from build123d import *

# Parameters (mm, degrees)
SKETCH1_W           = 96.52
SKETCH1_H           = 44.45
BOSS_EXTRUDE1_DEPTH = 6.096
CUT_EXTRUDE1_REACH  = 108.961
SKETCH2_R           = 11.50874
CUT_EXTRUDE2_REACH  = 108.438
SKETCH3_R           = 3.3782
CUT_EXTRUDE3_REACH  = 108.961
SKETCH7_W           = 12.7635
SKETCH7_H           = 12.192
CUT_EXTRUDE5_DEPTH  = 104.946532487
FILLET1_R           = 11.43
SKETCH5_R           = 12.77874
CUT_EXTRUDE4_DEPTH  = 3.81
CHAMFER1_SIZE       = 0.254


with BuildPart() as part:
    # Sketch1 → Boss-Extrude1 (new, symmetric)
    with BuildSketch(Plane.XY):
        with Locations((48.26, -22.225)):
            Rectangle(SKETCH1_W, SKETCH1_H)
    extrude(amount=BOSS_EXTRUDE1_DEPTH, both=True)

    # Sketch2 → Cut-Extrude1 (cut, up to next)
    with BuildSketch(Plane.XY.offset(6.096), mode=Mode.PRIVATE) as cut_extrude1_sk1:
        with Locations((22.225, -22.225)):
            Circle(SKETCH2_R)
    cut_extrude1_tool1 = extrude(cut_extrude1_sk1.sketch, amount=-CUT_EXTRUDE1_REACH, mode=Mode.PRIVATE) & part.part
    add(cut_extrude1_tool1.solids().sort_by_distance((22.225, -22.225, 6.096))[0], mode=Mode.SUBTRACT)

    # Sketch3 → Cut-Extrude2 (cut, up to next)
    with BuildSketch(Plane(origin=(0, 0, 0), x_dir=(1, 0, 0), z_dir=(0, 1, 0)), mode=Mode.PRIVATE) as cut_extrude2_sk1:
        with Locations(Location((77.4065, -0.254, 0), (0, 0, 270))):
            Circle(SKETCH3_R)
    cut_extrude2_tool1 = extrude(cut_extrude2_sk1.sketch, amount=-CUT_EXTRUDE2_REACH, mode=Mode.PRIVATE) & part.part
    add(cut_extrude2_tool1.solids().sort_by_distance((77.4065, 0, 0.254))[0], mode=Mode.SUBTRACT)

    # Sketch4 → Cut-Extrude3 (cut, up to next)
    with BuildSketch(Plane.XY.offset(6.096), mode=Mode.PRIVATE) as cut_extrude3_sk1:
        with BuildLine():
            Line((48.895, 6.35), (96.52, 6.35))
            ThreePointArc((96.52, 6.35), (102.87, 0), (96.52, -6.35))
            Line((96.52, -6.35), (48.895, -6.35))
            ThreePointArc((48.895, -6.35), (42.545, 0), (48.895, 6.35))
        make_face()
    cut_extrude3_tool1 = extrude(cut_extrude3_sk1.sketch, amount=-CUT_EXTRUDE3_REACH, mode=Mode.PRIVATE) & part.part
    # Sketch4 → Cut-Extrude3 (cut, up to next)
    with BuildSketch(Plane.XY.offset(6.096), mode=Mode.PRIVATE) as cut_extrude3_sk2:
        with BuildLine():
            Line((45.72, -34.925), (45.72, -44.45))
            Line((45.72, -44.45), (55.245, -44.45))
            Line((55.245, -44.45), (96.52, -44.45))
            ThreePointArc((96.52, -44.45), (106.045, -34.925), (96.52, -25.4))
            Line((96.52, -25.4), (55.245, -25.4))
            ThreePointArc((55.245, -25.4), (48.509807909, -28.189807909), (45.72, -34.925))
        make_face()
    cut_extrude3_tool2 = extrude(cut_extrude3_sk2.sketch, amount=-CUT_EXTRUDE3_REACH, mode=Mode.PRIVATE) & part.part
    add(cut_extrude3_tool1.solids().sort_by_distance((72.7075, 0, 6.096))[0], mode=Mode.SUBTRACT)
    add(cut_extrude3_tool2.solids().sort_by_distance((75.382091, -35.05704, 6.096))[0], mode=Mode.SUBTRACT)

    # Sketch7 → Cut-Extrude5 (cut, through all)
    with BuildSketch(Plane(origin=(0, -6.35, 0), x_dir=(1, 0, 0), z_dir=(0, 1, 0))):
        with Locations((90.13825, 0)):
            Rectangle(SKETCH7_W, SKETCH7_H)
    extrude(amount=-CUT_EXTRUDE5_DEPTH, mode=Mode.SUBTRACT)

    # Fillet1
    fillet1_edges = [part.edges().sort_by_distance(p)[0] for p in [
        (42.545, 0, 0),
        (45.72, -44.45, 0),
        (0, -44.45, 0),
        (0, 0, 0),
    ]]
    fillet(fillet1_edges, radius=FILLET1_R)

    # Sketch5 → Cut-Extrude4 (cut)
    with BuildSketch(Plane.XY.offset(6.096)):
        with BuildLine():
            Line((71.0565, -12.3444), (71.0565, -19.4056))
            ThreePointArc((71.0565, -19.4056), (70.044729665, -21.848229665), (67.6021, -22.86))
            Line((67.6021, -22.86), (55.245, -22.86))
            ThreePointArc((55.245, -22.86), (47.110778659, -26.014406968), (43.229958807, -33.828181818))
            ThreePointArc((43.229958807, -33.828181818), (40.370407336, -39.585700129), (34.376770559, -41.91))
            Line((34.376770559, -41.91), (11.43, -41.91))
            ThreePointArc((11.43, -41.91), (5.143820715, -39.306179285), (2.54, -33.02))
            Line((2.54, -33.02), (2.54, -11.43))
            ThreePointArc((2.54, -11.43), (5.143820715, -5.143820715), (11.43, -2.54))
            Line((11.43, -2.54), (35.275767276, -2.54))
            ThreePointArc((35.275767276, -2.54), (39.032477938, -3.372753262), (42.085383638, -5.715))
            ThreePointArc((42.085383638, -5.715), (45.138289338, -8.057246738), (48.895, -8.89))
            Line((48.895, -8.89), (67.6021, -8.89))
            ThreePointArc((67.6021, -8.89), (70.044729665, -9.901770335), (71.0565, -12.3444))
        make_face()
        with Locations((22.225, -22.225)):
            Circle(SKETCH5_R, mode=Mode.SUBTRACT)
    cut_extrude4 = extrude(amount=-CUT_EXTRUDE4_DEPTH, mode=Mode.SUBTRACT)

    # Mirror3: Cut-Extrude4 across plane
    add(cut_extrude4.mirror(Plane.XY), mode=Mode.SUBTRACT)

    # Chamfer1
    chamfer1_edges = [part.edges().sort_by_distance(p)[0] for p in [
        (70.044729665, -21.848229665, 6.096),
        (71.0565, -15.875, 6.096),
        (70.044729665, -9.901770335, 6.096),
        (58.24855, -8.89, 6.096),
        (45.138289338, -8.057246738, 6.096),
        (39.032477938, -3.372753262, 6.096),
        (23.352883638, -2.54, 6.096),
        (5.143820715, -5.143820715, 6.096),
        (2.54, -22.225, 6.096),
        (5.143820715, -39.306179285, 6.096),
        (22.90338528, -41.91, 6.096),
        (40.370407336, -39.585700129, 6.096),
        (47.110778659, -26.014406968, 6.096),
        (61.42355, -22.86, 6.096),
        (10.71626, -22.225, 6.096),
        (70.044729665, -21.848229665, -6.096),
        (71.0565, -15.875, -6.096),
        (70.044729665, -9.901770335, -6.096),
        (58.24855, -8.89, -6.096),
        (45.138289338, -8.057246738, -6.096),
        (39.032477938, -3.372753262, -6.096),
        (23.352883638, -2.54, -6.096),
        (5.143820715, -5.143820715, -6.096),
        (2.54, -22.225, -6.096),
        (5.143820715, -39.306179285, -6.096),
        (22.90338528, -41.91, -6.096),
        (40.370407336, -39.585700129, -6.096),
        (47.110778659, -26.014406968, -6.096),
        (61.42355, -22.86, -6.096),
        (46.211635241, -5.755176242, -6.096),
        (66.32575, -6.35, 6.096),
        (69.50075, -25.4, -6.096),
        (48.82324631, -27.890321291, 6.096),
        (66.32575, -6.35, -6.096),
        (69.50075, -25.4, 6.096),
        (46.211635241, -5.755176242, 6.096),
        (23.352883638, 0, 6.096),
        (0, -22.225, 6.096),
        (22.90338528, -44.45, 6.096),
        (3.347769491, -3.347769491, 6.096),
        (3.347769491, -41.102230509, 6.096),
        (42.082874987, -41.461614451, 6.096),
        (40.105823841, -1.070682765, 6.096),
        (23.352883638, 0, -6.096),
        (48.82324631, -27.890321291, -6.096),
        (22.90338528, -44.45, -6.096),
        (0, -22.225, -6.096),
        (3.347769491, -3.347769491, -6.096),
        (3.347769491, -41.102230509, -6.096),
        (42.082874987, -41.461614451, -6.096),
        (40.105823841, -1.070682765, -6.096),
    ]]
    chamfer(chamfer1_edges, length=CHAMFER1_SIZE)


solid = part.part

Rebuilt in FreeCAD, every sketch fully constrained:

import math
import FreeCAD as App
import Part
import Sketcher
Q = App.Units.Quantity


def edges_at(feature, points):
    """Names of the edges that pass closest to the given points."""
    edges = feature.Shape.Edges
    near = lambda p: min(range(len(edges)), key=lambda i: edges[i].distToShape(Part.Vertex(*p))[0])
    return sorted({f"Edge{near(p) + 1}" for p in points})

doc = App.newDocument("Part")
params = doc.addObject("Spreadsheet::Sheet", "Params")
for row, (alias, value) in enumerate([
    ("sketch1_width", "3.8 in"),
    ("sketch1_height", "1.75 in"),
    ("pad1_length", "0.48 in"),
    ("sketch3_diameter", "0.266 in"),
    ("sketch4_radius", "0.25 in"),
    ("sketch4_width", "1.875 in"),
    ("sketch5_width", "2 in"),
    ("sketch5_radius", "0.375 in"),
    ("sketch6_height", "0.48 in"),
    ("fillet_radius", "0.45 in"),
    ("sketch7_radius", "0.35 in"),
    ("sketch7_radius2", "0.136 in"),
    ("sketch7_radius3", "0.475 in"),
    ("sketch7_height", "0.85 in"),
    ("pocket6_length", "0.15 in"),
    ("chamfer_size", "0.01 in"),
], start=1):
    params.set(f"A{row}", alias)
    params.set(f"B{row}", "=" + value)
    params.setAlias(f"B{row}", alias)

body = doc.addObject("PartDesign::Body", "Body")

# Sketch on XY plane
sketch1 = body.newObject("Sketcher::SketchObject", "Sketch")
sketch1.AttachmentSupport = (doc.getObject("XY_Plane"), [""])
sketch1.MapMode = "FlatFace"
sketch1.addGeometry([
    Part.LineSegment(App.Vector(0, 0, 0), App.Vector(0, -44, 0)),
    Part.LineSegment(App.Vector(0, -44, 0), App.Vector(97, -44, 0)),
    Part.LineSegment(App.Vector(97, -44, 0), App.Vector(97, 0, 0)),
    Part.LineSegment(App.Vector(97, 0, 0), App.Vector(0, 0, 0)),
], False)
sketch1.addConstraint([
    Sketcher.Constraint("Coincident", 0, 2, 1, 1),
    Sketcher.Constraint("Coincident", 1, 2, 2, 1),
    Sketcher.Constraint("Coincident", 2, 2, 3, 1),
    Sketcher.Constraint("Coincident", 3, 2, 0, 1),
    Sketcher.Constraint("Vertical", 0),
    Sketcher.Constraint("Horizontal", 1),
    Sketcher.Constraint("Vertical", 2),
    Sketcher.Constraint("Horizontal", 3),
    Sketcher.Constraint("Coincident", 3, 2, -1, 1),
    Sketcher.Constraint("DistanceX", 1, 1, 1, 2, Q("3.8 in")),
    Sketcher.Constraint("DistanceY", 0, 2, 0, 1, Q("1.75 in")),
])
sketch1.setExpression("Constraints[9]", "Params.sketch1_width")
sketch1.setExpression("Constraints[10]", "Params.sketch1_height")
pad1 = body.newObject("PartDesign::Pad", "Pad")
pad1.Profile = sketch1
pad1.setExpression("Length", "Params.pad1_length")
pad1.Midplane = True

# Sketch on XY plane
sketch2 = body.newObject("Sketcher::SketchObject", "Sketch001")
sketch2.AttachmentSupport = (doc.getObject("XY_Plane"), [""])
sketch2.MapMode = "FlatFace"
sketch2.AttachmentOffset = App.Placement(App.Vector(0, 0, 0.24 * 25.4), App.Rotation())
sketch2.addGeometry(Part.Circle(App.Vector(22, -22, 0), App.Vector(0, 0, 1), 12), False)
sketch2.addConstraint([
    Sketcher.Constraint("Diameter", 0, Q("0.9062 in")),
    Sketcher.Constraint("DistanceX", -1, 1, 0, 3, Q("0.875 in")),
    Sketcher.Constraint("DistanceY", 0, 3, -1, 1, Q("0.875 in")),
])
pocket1 = body.newObject("PartDesign::Pocket", "Pocket")
pocket1.Profile = sketch2
pocket1.Type = "UpToFirst"

# Sketch on XZ plane
sketch3 = body.newObject("Sketcher::SketchObject", "Sketch002")
sketch3.AttachmentSupport = (doc.getObject("XZ_Plane"), [""])
sketch3.MapMode = "FlatFace"
sketch3.addGeometry(Part.Circle(App.Vector(77.4, 0.3, 0), App.Vector(0, 0, 1), 3.4), False)
sketch3.addConstraint([
    Sketcher.Constraint("Diameter", 0, Q("0.266 in")),
    Sketcher.Constraint("DistanceY", -1, 1, 0, 3, Q("0.01 in")),
    Sketcher.Constraint("DistanceX", -1, 1, 0, 3, Q("3.0475 in")),
])
sketch3.setExpression("Constraints[0]", "Params.sketch3_diameter")
pocket2 = body.newObject("PartDesign::Pocket", "Pocket001")
pocket2.Profile = sketch3
pocket2.Type = "UpToFirst"
pocket2.Reversed = True

# Sketch on XY plane
sketch4 = body.newObject("Sketcher::SketchObject", "Sketch003")
sketch4.AttachmentSupport = (doc.getObject("XY_Plane"), [""])
sketch4.MapMode = "FlatFace"
sketch4.AttachmentOffset = App.Placement(App.Vector(0, 0, 0.24 * 25.4), App.Rotation())
sketch4.addGeometry([
    Part.LineSegment(App.Vector(97, 6, 0), App.Vector(49, 6, 0)),
    Part.ArcOfCircle(Part.Circle(App.Vector(49, 0, 0), App.Vector(0, 0, 1), 6), math.radians(90), math.radians(270)),
    Part.LineSegment(App.Vector(49, -6, 0), App.Vector(97, -6, 0)),
    Part.ArcOfCircle(Part.Circle(App.Vector(97, 0, 0), App.Vector(0, 0, 1), 6), math.radians(-90), math.radians(90)),
], False)
sketch4.addConstraint([
    Sketcher.Constraint("Tangent", 0, 2, 1, 1),
    Sketcher.Constraint("Tangent", 1, 2, 2, 1),
    Sketcher.Constraint("Tangent", 2, 2, 3, 1),
    Sketcher.Constraint("Tangent", 3, 2, 0, 1),
    Sketcher.Constraint("Horizontal", 0),
    Sketcher.Constraint("Horizontal", 2),
    Sketcher.Constraint("PointOnObject", 1, 3, -1),
    Sketcher.Constraint("Radius", 1, Q("0.25 in")),
    Sketcher.Constraint("DistanceX", -1, 1, 3, 3, Q("3.8 in")),
    Sketcher.Constraint("DistanceX", 0, 2, 0, 1, Q("1.875 in")),
])
sketch4.setExpression("Constraints[7]", "Params.sketch4_radius")
sketch4.setExpression("Constraints[9]", "Params.sketch4_width")
pocket3 = body.newObject("PartDesign::Pocket", "Pocket002")
pocket3.Profile = sketch4
pocket3.Type = "UpToFirst"

# Sketch on XY plane
sketch5 = body.newObject("Sketcher::SketchObject", "Sketch004")
sketch5.AttachmentSupport = (doc.getObject("XY_Plane"), [""])
sketch5.MapMode = "FlatFace"
sketch5.AttachmentOffset = App.Placement(App.Vector(0, 0, 0.24 * 25.4), App.Rotation())
sketch5.addGeometry([
    Part.LineSegment(App.Vector(46, -35, 0), App.Vector(46, -44, 0)),  # 0
    Part.LineSegment(App.Vector(46, -44, 0), App.Vector(97, -44, 0)),  # 1
    Part.ArcOfCircle(Part.Circle(App.Vector(97, -35, 0), App.Vector(0, 0, 1), 10), math.radians(-90), math.radians(90)),  # 2
    Part.LineSegment(App.Vector(97, -25, 0), App.Vector(55, -25, 0)),  # 3
    Part.ArcOfCircle(Part.Circle(App.Vector(55, -35, 0), App.Vector(0, 0, 1), 10), math.radians(90), math.radians(180)),  # 4
], False)
sketch5.addConstraint([
    Sketcher.Constraint("Coincident", 0, 2, 1, 1),
    Sketcher.Constraint("Tangent", 1, 2, 2, 1),
    Sketcher.Constraint("Tangent", 2, 2, 3, 1),
    Sketcher.Constraint("Tangent", 3, 2, 4, 1),
    Sketcher.Constraint("Tangent", 4, 2, 0, 1),
    Sketcher.Constraint("Vertical", 0),
    Sketcher.Constraint("Horizontal", 1),
    Sketcher.Constraint("Horizontal", 3),
    Sketcher.Constraint("Equal", 2, 4),
    Sketcher.Constraint("DistanceX", 1, 1, 1, 2, Q("2 in")),
    Sketcher.Constraint("DistanceY", 2, 2, -1, 1, Q("1 in")),
    Sketcher.Constraint("Radius", 2, Q("0.375 in")),
    Sketcher.Constraint("DistanceX", -1, 1, 2, 3, Q("3.8 in")),
])
sketch5.setExpression("Constraints[9]", "Params.sketch5_width")
sketch5.setExpression("Constraints[11]", "Params.sketch5_radius")
pocket4 = body.newObject("PartDesign::Pocket", "Pocket003")
pocket4.Profile = sketch5
pocket4.Type = "UpToFirst"

# Sketch on XZ plane
sketch6 = body.newObject("Sketcher::SketchObject", "Sketch005")
sketch6.AttachmentSupport = (doc.getObject("XZ_Plane"), [""])
sketch6.MapMode = "FlatFace"
sketch6.AttachmentOffset = App.Placement(App.Vector(0, 0, 0.25 * 25.4), App.Rotation())
sketch6.addGeometry([
    Part.LineSegment(App.Vector(84, -6, 0), App.Vector(84, 6, 0)),
    Part.LineSegment(App.Vector(84, 6, 0), App.Vector(97, 6, 0)),
    Part.LineSegment(App.Vector(97, 6, 0), App.Vector(97, -6, 0)),
    Part.LineSegment(App.Vector(97, -6, 0), App.Vector(84, -6, 0)),
], False)
sketch6.addConstraint([
    Sketcher.Constraint("Coincident", 0, 2, 1, 1),
    Sketcher.Constraint("Coincident", 1, 2, 2, 1),
    Sketcher.Constraint("Coincident", 2, 2, 3, 1),
    Sketcher.Constraint("Coincident", 3, 2, 0, 1),
    Sketcher.Constraint("Vertical", 0),
    Sketcher.Constraint("Horizontal", 1),
    Sketcher.Constraint("Vertical", 2),
    Sketcher.Constraint("Horizontal", 3),
    Sketcher.Constraint("DistanceY", 0, 1, 0, 2, Q("0.48 in")),
    Sketcher.Constraint("DistanceX", -1, 1, 1, 2, Q("3.8 in")),
    Sketcher.Constraint("DistanceY", -1, 1, 0, 2, Q("0.24 in")),
    Sketcher.Constraint("DistanceX", 1, 1, 1, 2, Q("0.5025 in")),
])
sketch6.setExpression("Constraints[8]", "Params.sketch6_height")
pocket5 = body.newObject("PartDesign::Pocket", "Pocket004")
pocket5.Profile = sketch6
pocket5.Type = "ThroughAll"
pocket5.Reversed = True
doc.recompute()

fillet = body.newObject("PartDesign::Fillet", "Fillet")
fillet.Base = (pocket5, edges_at(pocket5, [
    (42.545, 0, 0),
    (45.72, -44.45, 0),
    (0, -44.45, 0),
    (0, 0, 0),
]))
fillet.setExpression("Radius", "Params.fillet_radius")

# Sketch on XY plane
sketch7 = body.newObject("Sketcher::SketchObject", "Sketch006")
sketch7.AttachmentSupport = (doc.getObject("XY_Plane"), [""])
sketch7.MapMode = "FlatFace"
sketch7.AttachmentOffset = App.Placement(App.Vector(0, 0, 0.24 * 25.4), App.Rotation())
sketch7.addGeometry([
    Part.LineSegment(App.Vector(71.1, -19.4, 0), App.Vector(71.1, -12.3, 0)),  # 0
    Part.ArcOfCircle(Part.Circle(App.Vector(67.6, -12.3, 0), App.Vector(0, 0, 1), 3.5), math.radians(0), math.radians(90)),  # 1
    Part.LineSegment(App.Vector(67.6, -8.9, 0), App.Vector(48.9, -8.9, 0)),  # 2
    Part.ArcOfCircle(Part.Circle(App.Vector(48.9, 0, 0), App.Vector(0, 0, 1), 8.9), math.radians(-140), math.radians(-90)),  # 3
    Part.ArcOfCircle(Part.Circle(App.Vector(35.3, -11.4, 0), App.Vector(0, 0, 1), 8.9), math.radians(40), math.radians(90)),  # 4
    Part.LineSegment(App.Vector(35.3, -2.5, 0), App.Vector(11.4, -2.5, 0)),  # 5
    Part.ArcOfCircle(Part.Circle(App.Vector(11.4, -11.4, 0), App.Vector(0, 0, 1), 8.9), math.radians(90), math.radians(180)),  # 6
    Part.LineSegment(App.Vector(2.5, -11.4, 0), App.Vector(2.5, -33, 0)),  # 7
    Part.ArcOfCircle(Part.Circle(App.Vector(11.4, -33, 0), App.Vector(0, 0, 1), 8.9), math.radians(180), math.radians(270)),  # 8
    Part.LineSegment(App.Vector(11.4, -41.9, 0), App.Vector(34.4, -41.9, 0)),  # 9
    Part.ArcOfCircle(Part.Circle(App.Vector(34.4, -33, 0), App.Vector(0, 0, 1), 8.9), math.radians(-90), math.radians(-5)),  # 10
    Part.ArcOfCircle(Part.Circle(App.Vector(55.2, -34.9, 0), App.Vector(0, 0, 1), 12.1), math.radians(90), math.radians(175)),  # 11
    Part.LineSegment(App.Vector(55.2, -22.9, 0), App.Vector(67.6, -22.9, 0)),  # 12
    Part.ArcOfCircle(Part.Circle(App.Vector(67.6, -19.4, 0), App.Vector(0, 0, 1), 3.5), math.radians(-90), math.radians(0)),  # 13
    Part.Circle(App.Vector(22.2, -22.2, 0), App.Vector(0, 0, 1), 12.8),  # 14
], False)
sketch7.addConstraint([
    Sketcher.Constraint("Tangent", 0, 2, 1, 1),
    Sketcher.Constraint("Tangent", 1, 2, 2, 1),
    Sketcher.Constraint("Tangent", 2, 2, 3, 2),
    Sketcher.Constraint("Tangent", 3, 1, 4, 1),
    Sketcher.Constraint("Tangent", 4, 2, 5, 1),
    Sketcher.Constraint("Tangent", 5, 2, 6, 1),
    Sketcher.Constraint("Tangent", 6, 2, 7, 1),
    Sketcher.Constraint("Tangent", 7, 2, 8, 1),
    Sketcher.Constraint("Tangent", 8, 2, 9, 1),
    Sketcher.Constraint("Tangent", 9, 2, 10, 1),
    Sketcher.Constraint("Tangent", 10, 2, 11, 2),
    Sketcher.Constraint("Tangent", 11, 1, 12, 1),
    Sketcher.Constraint("Tangent", 12, 2, 13, 1),
    Sketcher.Constraint("Tangent", 13, 2, 0, 1),
    Sketcher.Constraint("Vertical", 0),
    Sketcher.Constraint("Horizontal", 2),
    Sketcher.Constraint("Horizontal", 5),
    Sketcher.Constraint("Vertical", 7),
    Sketcher.Constraint("Horizontal", 9),
    Sketcher.Constraint("Horizontal", 12),
    Sketcher.Constraint("Equal", 3, 4),
    Sketcher.Constraint("Equal", 4, 6),
    Sketcher.Constraint("Equal", 6, 8),
    Sketcher.Constraint("Equal", 8, 10),
    Sketcher.Constraint("Equal", 1, 13),
    Sketcher.Constraint("PointOnObject", 3, 3, -1),
    Sketcher.Constraint("Radius", 3, Q("0.35 in")),
    Sketcher.Constraint("Radius", 1, Q("0.136 in")),
    Sketcher.Constraint("Radius", 11, Q("0.475 in")),
    Sketcher.Constraint("Diameter", 14, Q("1.0062 in")),
    Sketcher.Constraint("DistanceY", 7, 2, 7, 1, Q("0.85 in")),
    Sketcher.Constraint("DistanceY", 8, 3, -1, 1, Q("1.3 in")),
    Sketcher.Constraint("DistanceX", -1, 1, 6, 2, Q("0.1 in")),
    Sketcher.Constraint("DistanceY", 11, 1, -1, 1, Q("0.9 in")),
    Sketcher.Constraint("DistanceX", 3, 3, 11, 3, Q("0.25 in")),
    Sketcher.Constraint("DistanceX", 14, 3, 3, 3, Q("1.05 in")),
    Sketcher.Constraint("DistanceY", 14, 3, 3, 1, Q("0.65 in")),
    Sketcher.Constraint("DistanceX", 2, 2, 2, 1, Q("0.7365 in")),
    Sketcher.Constraint("DistanceX", -1, 1, 3, 3, Q("1.925 in")),
])
sketch7.setExpression("Constraints[26]", "Params.sketch7_radius")
sketch7.setExpression("Constraints[27]", "Params.sketch7_radius2")
sketch7.setExpression("Constraints[28]", "Params.sketch7_radius3")
sketch7.setExpression("Constraints[30]", "Params.sketch7_height")
pocket6 = body.newObject("PartDesign::Pocket", "Pocket005")
pocket6.Profile = sketch7
pocket6.setExpression("Length", "Params.pocket6_length")
doc.recompute()

mirrored = body.newObject("PartDesign::Mirrored", "Mirrored")
mirrored.Originals = [pocket6]
mirrored.MirrorPlane = (doc.getObject("XY_Plane"), [""])
body.Tip = mirrored
doc.recompute()

chamfer = body.newObject("PartDesign::Chamfer", "Chamfer")
chamfer.Base = (mirrored, edges_at(mirrored, [
    (70.045, -21.848, 6.096),
    (71.056, -15.875, 6.096),
    (70.045, -9.902, 6.096),
    (58.249, -8.89, 6.096),
    (45.138, -8.057, 6.096),
    (39.032, -3.373, 6.096),
    (23.353, -2.54, 6.096),
    (5.144, -5.144, 6.096),
    (2.54, -22.225, 6.096),
    (5.144, -39.306, 6.096),
    (22.903, -41.91, 6.096),
    (40.37, -39.586, 6.096),
    (47.111, -26.014, 6.096),
    (61.424, -22.86, 6.096),
    (10.716, -22.225, 6.096),
    (70.045, -21.848, -6.096),
    (71.056, -15.875, -6.096),
    (70.045, -9.902, -6.096),
    (58.249, -8.89, -6.096),
    (45.138, -8.057, -6.096),
    (39.032, -3.373, -6.096),
    (23.353, -2.54, -6.096),
    (5.144, -5.144, -6.096),
    (2.54, -22.225, -6.096),
    (5.144, -39.306, -6.096),
    (22.903, -41.91, -6.096),
    (40.37, -39.586, -6.096),
    (47.111, -26.014, -6.096),
    (61.424, -22.86, -6.096),
    (46.212, -5.755, -6.096),
    (66.326, -6.35, 6.096),
    (69.501, -25.4, -6.096),
    (48.823, -27.89, 6.096),
    (66.326, -6.35, -6.096),
    (69.501, -25.4, 6.096),
    (46.212, -5.755, 6.096),
    (23.353, 0, 6.096),
    (0, -22.225, 6.096),
    (22.903, -44.45, 6.096),
    (3.348, -3.348, 6.096),
    (3.348, -41.102, 6.096),
    (42.083, -41.462, 6.096),
    (40.106, -1.071, 6.096),
    (23.353, 0, -6.096),
    (48.823, -27.89, -6.096),
    (22.903, -44.45, -6.096),
    (0, -22.225, -6.096),
    (3.348, -3.348, -6.096),
    (3.348, -41.102, -6.096),
    (42.083, -41.462, -6.096),
    (40.106, -1.071, -6.096),
]))
chamfer.setExpression("Size", "Params.chamfer_size")

doc.recompute()
